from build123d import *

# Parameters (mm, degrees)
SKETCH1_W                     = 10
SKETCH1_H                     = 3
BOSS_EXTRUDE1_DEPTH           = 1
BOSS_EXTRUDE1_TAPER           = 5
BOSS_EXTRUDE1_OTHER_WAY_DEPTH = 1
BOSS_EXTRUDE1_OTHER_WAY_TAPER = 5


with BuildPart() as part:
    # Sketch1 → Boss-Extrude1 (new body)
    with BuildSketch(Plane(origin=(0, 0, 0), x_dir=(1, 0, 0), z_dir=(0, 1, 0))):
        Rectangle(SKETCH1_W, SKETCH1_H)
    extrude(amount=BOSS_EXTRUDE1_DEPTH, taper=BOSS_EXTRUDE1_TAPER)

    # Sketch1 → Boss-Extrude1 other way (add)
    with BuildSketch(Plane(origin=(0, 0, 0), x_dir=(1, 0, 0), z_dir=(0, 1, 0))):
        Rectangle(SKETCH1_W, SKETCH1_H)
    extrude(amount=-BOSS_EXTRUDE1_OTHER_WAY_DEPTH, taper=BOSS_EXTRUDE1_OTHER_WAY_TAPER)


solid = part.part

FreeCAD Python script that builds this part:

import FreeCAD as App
import Part
import Sketcher
Q = App.Units.Quantity

doc = App.newDocument("Part")
body = doc.addObject("PartDesign::Body", "Body")

# Sketch on XZ plane
sketch1 = body.newObject("Sketcher::SketchObject", "Sketch")
sketch1.AttachmentSupport = (doc.getObject("XZ_Plane"), [""])
sketch1.MapMode = "FlatFace"
sketch1.addGeometry([
    Part.LineSegment(App.Vector(-5, -1.5, 0), App.Vector(-5, 1.5, 0)),
    Part.LineSegment(App.Vector(-5, 1.5, 0), App.Vector(5, 1.5, 0)),
    Part.LineSegment(App.Vector(5, 1.5, 0), App.Vector(5, -1.5, 0)),
    Part.LineSegment(App.Vector(5, -1.5, 0), App.Vector(-5, -1.5, 0)),
], False)
sketch1.addConstraint([
    Sketcher.Constraint("Coincident", 0, 2, 1, 1),
    Sketcher.Constraint("Coincident", 1, 2, 2, 1),
    Sketcher.Constraint("Coincident", 2, 2, 3, 1),
    Sketcher.Constraint("Coincident", 3, 2, 0, 1),
    Sketcher.Constraint("Vertical", 0),
    Sketcher.Constraint("Horizontal", 1),
    Sketcher.Constraint("Vertical", 2),
    Sketcher.Constraint("Horizontal", 3),
    Sketcher.Constraint("Symmetric", 0, 2, 2, 2, -1, 1),
    Sketcher.Constraint("DistanceX", 1, 1, 1, 2, Q("10 mm")),
    Sketcher.Constraint("DistanceY", 0, 1, 0, 2, Q("3 mm")),
])
pad1 = body.newObject("PartDesign::Pad", "Pad")
pad1.Profile = sketch1
pad1.Length = 1
pad1.Reversed = True
pad1.TaperAngle = -5

# Sketch on XZ plane
sketch2 = body.newObject("Sketcher::SketchObject", "Sketch001")
sketch2.AttachmentSupport = (doc.getObject("XZ_Plane"), [""])
sketch2.MapMode = "FlatFace"
sketch2.addGeometry([
    Part.LineSegment(App.Vector(-5, -1.5, 0), App.Vector(-5, 1.5, 0)),
    Part.LineSegment(App.Vector(-5, 1.5, 0), App.Vector(5, 1.5, 0)),
    Part.LineSegment(App.Vector(5, 1.5, 0), App.Vector(5, -1.5, 0)),
    Part.LineSegment(App.Vector(5, -1.5, 0), App.Vector(-5, -1.5, 0)),
], False)
sketch2.addConstraint([
    Sketcher.Constraint("Coincident", 0, 2, 1, 1),
    Sketcher.Constraint("Coincident", 1, 2, 2, 1),
    Sketcher.Constraint("Coincident", 2, 2, 3, 1),
    Sketcher.Constraint("Coincident", 3, 2, 0, 1),
    Sketcher.Constraint("Vertical", 0),
    Sketcher.Constraint("Horizontal", 1),
    Sketcher.Constraint("Vertical", 2),
    Sketcher.Constraint("Horizontal", 3),
    Sketcher.Constraint("Symmetric", 0, 2, 2, 2, -1, 1),
    Sketcher.Constraint("DistanceX", 1, 1, 1, 2, Q("10 mm")),
    Sketcher.Constraint("DistanceY", 0, 1, 0, 2, Q("3 mm")),
])
pad2 = body.newObject("PartDesign::Pad", "Pad001")
pad2.Profile = sketch2
pad2.Length = 1
pad2.TaperAngle = -5

doc.recompute()
